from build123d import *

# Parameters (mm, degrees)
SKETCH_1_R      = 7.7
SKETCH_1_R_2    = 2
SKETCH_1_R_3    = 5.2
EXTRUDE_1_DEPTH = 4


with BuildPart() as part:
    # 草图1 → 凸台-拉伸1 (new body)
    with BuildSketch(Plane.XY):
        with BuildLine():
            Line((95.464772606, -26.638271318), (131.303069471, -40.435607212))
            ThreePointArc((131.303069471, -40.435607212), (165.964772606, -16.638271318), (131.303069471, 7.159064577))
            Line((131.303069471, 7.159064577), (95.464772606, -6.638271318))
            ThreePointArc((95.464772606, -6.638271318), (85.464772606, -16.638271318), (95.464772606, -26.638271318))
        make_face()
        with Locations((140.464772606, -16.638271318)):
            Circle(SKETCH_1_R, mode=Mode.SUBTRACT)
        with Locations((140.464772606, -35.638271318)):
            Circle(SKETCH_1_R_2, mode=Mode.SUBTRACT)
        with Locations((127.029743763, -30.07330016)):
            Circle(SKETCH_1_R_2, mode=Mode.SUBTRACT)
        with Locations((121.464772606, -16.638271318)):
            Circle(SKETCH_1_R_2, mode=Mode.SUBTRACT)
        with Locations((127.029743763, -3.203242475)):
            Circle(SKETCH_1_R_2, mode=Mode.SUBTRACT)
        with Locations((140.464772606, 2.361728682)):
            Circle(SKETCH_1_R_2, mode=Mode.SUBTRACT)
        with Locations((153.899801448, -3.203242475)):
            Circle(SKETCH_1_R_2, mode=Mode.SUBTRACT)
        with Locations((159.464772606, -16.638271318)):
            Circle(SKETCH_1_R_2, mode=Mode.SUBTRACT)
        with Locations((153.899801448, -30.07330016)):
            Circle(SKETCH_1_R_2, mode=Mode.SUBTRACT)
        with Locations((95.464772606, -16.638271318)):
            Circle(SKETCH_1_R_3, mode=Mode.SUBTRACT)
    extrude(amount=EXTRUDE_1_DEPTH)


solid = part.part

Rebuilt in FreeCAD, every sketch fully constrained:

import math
import FreeCAD as App
import Part
import Sketcher
Q = App.Units.Quantity

doc = App.newDocument("Part")
body = doc.addObject("PartDesign::Body", "Body")

# Sketch on XY plane
sketch1 = body.newObject("Sketcher::SketchObject", "Sketch")
sketch1.AttachmentSupport = (doc.getObject("XY_Plane"), [""])
sketch1.MapMode = "FlatFace"
sketch1.addGeometry([
    Part.LineSegment(App.Vector(95.5, -26.6, 0), App.Vector(131.3, -40.4, 0)),  # 0
    Part.ArcOfCircle(Part.Circle(App.Vector(140.5, -16.6, 0), App.Vector(0, 0, 1), 25.5), math.radians(-111), math.radians(111)),  # 1
    Part.LineSegment(App.Vector(131.3, 7.2, 0), App.Vector(95.5, -6.6, 0)),  # 2
    Part.ArcOfCircle(Part.Circle(App.Vector(95.5, -16.6, 0), App.Vector(0, 0, 1), 10), math.radians(90), math.radians(270)),  # 3
    Part.Circle(App.Vector(140.5, -35.6, 0), App.Vector(0, 0, 1), 2),  # 4
    Part.Circle(App.Vector(127, -30.1, 0), App.Vector(0, 0, 1), 2),  # 5
    Part.Circle(App.Vector(153.9, -30.1, 0), App.Vector(0, 0, 1), 2),  # 6
    Part.Circle(App.Vector(95.5, -16.6, 0), App.Vector(0, 0, 1), 5.2),  # 7
    Part.Circle(App.Vector(121.5, -16.6, 0), App.Vector(0, 0, 1), 2),  # 8
    Part.Circle(App.Vector(140.5, -16.6, 0), App.Vector(0, 0, 1), 7.7),  # 9
    Part.Circle(App.Vector(159.5, -16.6, 0), App.Vector(0, 0, 1), 2),  # 10
    Part.Circle(App.Vector(127, -3.2, 0), App.Vector(0, 0, 1), 2),  # 11
    Part.Circle(App.Vector(140.5, 2.4, 0), App.Vector(0, 0, 1), 2),  # 12
    Part.Circle(App.Vector(153.9, -3.2, 0), App.Vector(0, 0, 1), 2),  # 13
], False)
sketch1.addConstraint([
    Sketcher.Constraint("Tangent", 0, 2, 1, 1),
    Sketcher.Constraint("Tangent", 1, 2, 2, 1),
    Sketcher.Constraint("Coincident", 2, 2, 3, 1),
    Sketcher.Constraint("Coincident", 3, 2, 0, 1),
    Sketcher.Constraint("Coincident", 7, 3, 3, 3),
    Sketcher.Constraint("Coincident", 9, 3, 1, 3),
    Sketcher.Constraint("Equal", 4, 5),
    Sketcher.Constraint("Equal", 5, 6),
    Sketcher.Constraint("Equal", 6, 8),
    Sketcher.Constraint("Equal", 8, 10),
    Sketcher.Constraint("Equal", 10, 11),
    Sketcher.Constraint("Equal", 11, 12),
    Sketcher.Constraint("Equal", 12, 13),
    Sketcher.Constraint("Horizontal", 1, 3, 3, 3),
    Sketcher.Constraint("Horizontal", 5, 3, 6, 3),
    Sketcher.Constraint("Horizontal", 7, 3, 8, 3),
    Sketcher.Constraint("Horizontal", 9, 3, 10, 3),
    Sketcher.Constraint("Horizontal", 11, 3, 13, 3),
    Sketcher.Constraint("Vertical", 1, 3, 4, 3),
    Sketcher.Constraint("Vertical", 5, 3, 11, 3),
    Sketcher.Constraint("Vertical", 9, 3, 12, 3),
    Sketcher.Constraint("Vertical", 6, 3, 13, 3),
    Sketcher.Constraint("Vertical", 0, 2, 1, 2),
    Sketcher.Constraint("Vertical", 7, 3, 2, 2),
    Sketcher.Constraint("Diameter", 4, Q("4 mm")),
    Sketcher.Constraint("Radius", 3, Q("10 mm")),
    Sketcher.Constraint("Diameter", 7, Q("10.4 mm")),
    Sketcher.Constraint("Diameter", 9, Q("15.4 mm")),
    Sketcher.Constraint("Radius", 1, Q("25.5 mm")),
    Sketcher.Constraint("DistanceX", 3, 3, 1, 3, Q("45 mm")),
    Sketcher.Constraint("DistanceY", 4, 3, 1, 3, Q("19 mm")),
    Sketcher.Constraint("DistanceX", 8, 3, 1, 3, Q("19 mm")),
    Sketcher.Constraint("DistanceX", 1, 3, 10, 3, Q("19 mm")),
    Sketcher.Constraint("DistanceY", 1, 3, 12, 3, Q("19 mm")),
    Sketcher.Constraint("DistanceY", 5, 3, -1, 1, Q("30.0733 mm")),
    Sketcher.Constraint("DistanceX", -1, 1, 6, 3, Q("153.899801 mm")),
    Sketcher.Constraint("DistanceY", 1, 3, -1, 1, Q("16.638271 mm")),
    Sketcher.Constraint("DistanceX", -1, 1, 0, 2, Q("131.303069 mm")),
    Sketcher.Constraint("DistanceX", 5, 3, 4, 3, Q("13.435029 mm")),
    Sketcher.Constraint("DistanceY", 8, 3, 11, 3, Q("13.435029 mm")),
])
pad1 = body.newObject("PartDesign::Pad", "Pad")
pad1.Profile = sketch1
pad1.Length = 4

doc.recompute()
